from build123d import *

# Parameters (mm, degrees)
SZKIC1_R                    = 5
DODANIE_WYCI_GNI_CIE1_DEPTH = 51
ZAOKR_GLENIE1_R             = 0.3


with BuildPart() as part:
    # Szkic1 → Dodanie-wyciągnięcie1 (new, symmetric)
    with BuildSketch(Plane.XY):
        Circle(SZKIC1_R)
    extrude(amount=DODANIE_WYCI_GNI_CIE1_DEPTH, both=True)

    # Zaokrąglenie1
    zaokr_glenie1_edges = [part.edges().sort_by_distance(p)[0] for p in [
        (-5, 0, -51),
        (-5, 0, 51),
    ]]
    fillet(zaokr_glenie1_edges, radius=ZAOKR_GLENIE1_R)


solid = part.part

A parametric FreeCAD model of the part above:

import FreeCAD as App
import Part
import Sketcher
Q = App.Units.Quantity


def edges_at(feature, points):
    """Names of the edges that pass closest to the given points."""
    edges = feature.Shape.Edges
    near = lambda p: min(range(len(edges)), key=lambda i: edges[i].distToShape(Part.Vertex(*p))[0])
    return sorted({f"Edge{near(p) + 1}" for p in points})

doc = App.newDocument("Part")
body = doc.addObject("PartDesign::Body", "Body")

# Sketch on XY plane
sketch1 = body.newObject("Sketcher::SketchObject", "Sketch")
sketch1.AttachmentSupport = (doc.getObject("XY_Plane"), [""])
sketch1.MapMode = "FlatFace"
sketch1.addGeometry(Part.Circle(App.Vector(0, 0, 0), App.Vector(0, 0, 1), 5), False)
sketch1.addConstraint(Sketcher.Constraint("Coincident", 0, 3, -1, 1))
sketch1.addConstraint(Sketcher.Constraint("Diameter", 0, Q("10 mm")))
pad1 = body.newObject("PartDesign::Pad", "Pad")
pad1.Profile = sketch1
pad1.Length = 102
pad1.Midplane = True
doc.recompute()

fillet = body.newObject("PartDesign::Fillet", "Fillet")
fillet.Base = (pad1, edges_at(pad1, [(-5, 0, -51), (-5, 0, 51)]))
fillet.Radius = 0.3

doc.recompute()
